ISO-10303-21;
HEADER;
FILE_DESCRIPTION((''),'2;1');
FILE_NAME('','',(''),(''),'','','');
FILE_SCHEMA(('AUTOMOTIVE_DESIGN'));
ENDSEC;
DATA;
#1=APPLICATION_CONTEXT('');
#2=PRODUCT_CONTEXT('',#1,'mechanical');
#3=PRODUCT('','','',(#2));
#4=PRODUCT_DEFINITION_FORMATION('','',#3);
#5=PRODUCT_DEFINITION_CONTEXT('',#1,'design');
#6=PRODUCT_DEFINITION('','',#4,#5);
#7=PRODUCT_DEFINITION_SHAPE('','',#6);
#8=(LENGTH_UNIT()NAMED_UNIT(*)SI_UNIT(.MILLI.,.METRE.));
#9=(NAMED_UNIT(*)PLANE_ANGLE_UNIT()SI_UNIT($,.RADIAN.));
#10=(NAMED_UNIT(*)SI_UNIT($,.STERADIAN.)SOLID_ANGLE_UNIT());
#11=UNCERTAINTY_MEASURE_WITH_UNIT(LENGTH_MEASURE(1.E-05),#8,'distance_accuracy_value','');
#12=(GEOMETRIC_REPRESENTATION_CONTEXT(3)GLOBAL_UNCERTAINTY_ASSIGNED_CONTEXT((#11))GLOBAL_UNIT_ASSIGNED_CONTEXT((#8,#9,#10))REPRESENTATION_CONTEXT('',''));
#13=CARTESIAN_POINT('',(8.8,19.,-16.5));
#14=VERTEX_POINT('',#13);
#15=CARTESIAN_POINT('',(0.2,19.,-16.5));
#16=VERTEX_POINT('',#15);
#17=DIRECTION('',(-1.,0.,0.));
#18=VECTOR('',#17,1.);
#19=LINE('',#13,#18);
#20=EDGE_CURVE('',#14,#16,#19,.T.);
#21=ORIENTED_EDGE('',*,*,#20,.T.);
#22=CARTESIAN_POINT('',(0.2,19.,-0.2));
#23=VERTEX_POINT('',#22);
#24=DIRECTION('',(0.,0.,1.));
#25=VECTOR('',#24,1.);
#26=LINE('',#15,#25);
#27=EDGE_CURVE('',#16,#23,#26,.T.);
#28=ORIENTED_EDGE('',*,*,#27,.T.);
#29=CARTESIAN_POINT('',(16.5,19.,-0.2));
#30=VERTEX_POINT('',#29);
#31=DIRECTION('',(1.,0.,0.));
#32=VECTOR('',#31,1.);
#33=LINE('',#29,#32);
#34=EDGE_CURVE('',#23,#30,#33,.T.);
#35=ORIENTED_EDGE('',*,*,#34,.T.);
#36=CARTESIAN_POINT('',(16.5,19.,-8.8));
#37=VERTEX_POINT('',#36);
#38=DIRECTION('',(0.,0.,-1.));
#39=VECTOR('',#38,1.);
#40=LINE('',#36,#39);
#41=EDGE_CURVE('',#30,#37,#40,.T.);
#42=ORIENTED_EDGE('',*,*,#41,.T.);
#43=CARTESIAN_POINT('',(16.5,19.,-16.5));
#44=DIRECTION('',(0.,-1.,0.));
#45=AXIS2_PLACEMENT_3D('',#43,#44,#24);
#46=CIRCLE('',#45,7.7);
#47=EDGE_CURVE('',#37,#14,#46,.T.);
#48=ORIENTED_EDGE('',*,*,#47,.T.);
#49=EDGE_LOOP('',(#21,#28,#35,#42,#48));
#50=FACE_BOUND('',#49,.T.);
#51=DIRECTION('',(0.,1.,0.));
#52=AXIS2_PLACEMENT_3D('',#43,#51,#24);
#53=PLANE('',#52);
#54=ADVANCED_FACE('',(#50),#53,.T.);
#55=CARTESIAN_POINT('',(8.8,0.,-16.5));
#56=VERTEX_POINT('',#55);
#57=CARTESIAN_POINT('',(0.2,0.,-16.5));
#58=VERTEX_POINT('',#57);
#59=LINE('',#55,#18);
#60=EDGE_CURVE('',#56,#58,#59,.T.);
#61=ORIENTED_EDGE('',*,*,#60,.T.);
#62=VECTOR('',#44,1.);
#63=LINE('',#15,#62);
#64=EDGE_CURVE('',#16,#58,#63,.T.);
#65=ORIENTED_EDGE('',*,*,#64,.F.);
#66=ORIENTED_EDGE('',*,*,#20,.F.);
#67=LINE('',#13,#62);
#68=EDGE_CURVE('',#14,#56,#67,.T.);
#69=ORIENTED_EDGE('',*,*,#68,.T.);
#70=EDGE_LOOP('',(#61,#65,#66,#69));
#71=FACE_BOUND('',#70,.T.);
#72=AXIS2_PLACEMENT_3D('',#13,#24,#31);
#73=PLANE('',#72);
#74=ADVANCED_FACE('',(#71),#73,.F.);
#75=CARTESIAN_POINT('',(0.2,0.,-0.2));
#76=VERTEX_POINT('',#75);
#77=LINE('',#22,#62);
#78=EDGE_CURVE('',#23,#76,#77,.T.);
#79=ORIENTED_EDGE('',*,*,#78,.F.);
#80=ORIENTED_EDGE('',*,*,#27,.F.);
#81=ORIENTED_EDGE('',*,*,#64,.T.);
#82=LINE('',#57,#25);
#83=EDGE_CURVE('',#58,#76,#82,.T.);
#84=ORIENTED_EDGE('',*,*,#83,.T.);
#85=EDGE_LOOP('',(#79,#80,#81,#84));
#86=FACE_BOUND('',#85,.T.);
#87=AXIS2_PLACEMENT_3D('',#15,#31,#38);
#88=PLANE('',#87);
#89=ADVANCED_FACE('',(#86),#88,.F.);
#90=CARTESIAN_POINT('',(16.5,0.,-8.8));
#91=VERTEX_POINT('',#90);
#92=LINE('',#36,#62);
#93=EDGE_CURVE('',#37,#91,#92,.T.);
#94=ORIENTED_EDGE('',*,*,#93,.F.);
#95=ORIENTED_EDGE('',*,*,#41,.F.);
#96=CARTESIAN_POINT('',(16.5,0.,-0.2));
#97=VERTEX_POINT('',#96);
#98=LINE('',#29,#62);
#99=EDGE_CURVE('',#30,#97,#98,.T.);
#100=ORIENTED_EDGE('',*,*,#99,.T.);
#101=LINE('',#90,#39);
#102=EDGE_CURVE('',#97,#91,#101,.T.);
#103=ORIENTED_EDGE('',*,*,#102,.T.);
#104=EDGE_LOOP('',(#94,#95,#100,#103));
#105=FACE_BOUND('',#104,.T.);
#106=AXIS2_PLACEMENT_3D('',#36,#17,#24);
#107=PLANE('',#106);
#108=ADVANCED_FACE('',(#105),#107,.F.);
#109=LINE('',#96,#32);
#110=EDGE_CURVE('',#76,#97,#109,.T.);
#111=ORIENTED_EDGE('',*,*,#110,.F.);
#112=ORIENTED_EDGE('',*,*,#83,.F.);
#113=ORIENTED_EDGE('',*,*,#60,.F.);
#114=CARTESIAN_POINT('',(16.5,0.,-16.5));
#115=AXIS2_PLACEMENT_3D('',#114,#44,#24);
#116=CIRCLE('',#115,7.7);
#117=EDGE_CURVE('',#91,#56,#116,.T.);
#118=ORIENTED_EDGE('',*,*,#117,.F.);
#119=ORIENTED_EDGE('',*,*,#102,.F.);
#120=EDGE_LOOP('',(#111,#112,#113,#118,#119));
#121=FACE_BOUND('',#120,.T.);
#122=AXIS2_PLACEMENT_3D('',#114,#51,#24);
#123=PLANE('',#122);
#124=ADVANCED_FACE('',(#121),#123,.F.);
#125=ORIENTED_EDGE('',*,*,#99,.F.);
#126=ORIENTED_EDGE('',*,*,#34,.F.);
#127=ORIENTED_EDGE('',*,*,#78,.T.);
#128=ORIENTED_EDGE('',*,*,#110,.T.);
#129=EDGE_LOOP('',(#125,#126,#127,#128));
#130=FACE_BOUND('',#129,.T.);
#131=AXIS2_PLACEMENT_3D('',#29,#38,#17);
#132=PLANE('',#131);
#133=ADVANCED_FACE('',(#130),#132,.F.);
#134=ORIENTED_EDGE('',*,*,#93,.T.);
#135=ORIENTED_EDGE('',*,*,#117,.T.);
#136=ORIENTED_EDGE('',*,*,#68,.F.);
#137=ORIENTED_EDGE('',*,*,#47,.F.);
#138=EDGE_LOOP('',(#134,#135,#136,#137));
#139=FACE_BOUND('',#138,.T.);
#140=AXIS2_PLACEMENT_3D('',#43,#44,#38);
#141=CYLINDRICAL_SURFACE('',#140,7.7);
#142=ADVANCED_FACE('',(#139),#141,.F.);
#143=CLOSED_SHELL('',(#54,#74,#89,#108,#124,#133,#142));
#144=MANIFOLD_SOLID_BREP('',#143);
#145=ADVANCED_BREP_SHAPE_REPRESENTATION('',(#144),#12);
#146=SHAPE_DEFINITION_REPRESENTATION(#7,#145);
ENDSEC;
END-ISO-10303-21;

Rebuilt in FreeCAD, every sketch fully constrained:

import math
import FreeCAD as App
import Part
import Sketcher
Q = App.Units.Quantity

doc = App.newDocument("Part")
body = doc.addObject("PartDesign::Body", "Body")

# Sketch on XZ plane
sketch1 = doc.addObject("Sketcher::SketchObject", "Sketch")
body.addObject(sketch1)
sketch1.AttachmentSupport = (doc.XZ_Plane, [""])
sketch1.MapMode = "FlatFace"
sketch1.addGeometry(Part.LineSegment(App.Vector(9, -16, 0), App.Vector(0, -16, 0)), False)
sketch1.addGeometry(Part.LineSegment(App.Vector(0, -16, 0), App.Vector(0, 0, 0)), False)
sketch1.addGeometry(Part.LineSegment(App.Vector(0, 0, 0), App.Vector(16, 0, 0)), False)
sketch1.addGeometry(Part.LineSegment(App.Vector(16, 0, 0), App.Vector(16, -9, 0)), False)
sketch1.addGeometry(Part.ArcOfCircle(Part.Circle(App.Vector(16, -16, 0), App.Vector(0, 0, 1), 8), math.radians(90), math.radians(180)), False)
sketch1.addConstraint(Sketcher.Constraint("Coincident", 0, 2, 1, 1))
sketch1.addConstraint(Sketcher.Constraint("Coincident", 1, 2, 2, 1))
sketch1.addConstraint(Sketcher.Constraint("Coincident", 2, 2, 3, 1))
sketch1.addConstraint(Sketcher.Constraint("Coincident", 3, 2, 4, 1))
sketch1.addConstraint(Sketcher.Constraint("Coincident", 4, 2, 0, 1))
sketch1.addConstraint(Sketcher.Constraint("Horizontal", 0))
sketch1.addConstraint(Sketcher.Constraint("Vertical", 1))
sketch1.addConstraint(Sketcher.Constraint("Horizontal", 2))
sketch1.addConstraint(Sketcher.Constraint("Vertical", 3))
sketch1.addConstraint(Sketcher.Constraint("Horizontal", 4, 3, 0, 2))
sketch1.addConstraint(Sketcher.Constraint("Vertical", 4, 3, 2, 2))
sketch1.addConstraint(Sketcher.Constraint("Equal", 2, 1))
sketch1.addConstraint(Sketcher.Constraint("Radius", 4, Q("7.7 mm")))
sketch1.addConstraint(Sketcher.Constraint("DistanceX", 0, 2, 0, 1, Q("8.6 mm")))
sketch1.addConstraint(Sketcher.Constraint("DistanceX", -1, 1, 4, 3, Q("16.5 mm")))
sketch1.addConstraint(Sketcher.Constraint("DistanceY", 4, 3, -1, 1, Q("16.5 mm")))
pad1 = doc.addObject("PartDesign::Pad", "Pad")
body.addObject(pad1)
pad1.Profile = sketch1
pad1.Length = 19
pad1.Reversed = True

doc.recompute()
